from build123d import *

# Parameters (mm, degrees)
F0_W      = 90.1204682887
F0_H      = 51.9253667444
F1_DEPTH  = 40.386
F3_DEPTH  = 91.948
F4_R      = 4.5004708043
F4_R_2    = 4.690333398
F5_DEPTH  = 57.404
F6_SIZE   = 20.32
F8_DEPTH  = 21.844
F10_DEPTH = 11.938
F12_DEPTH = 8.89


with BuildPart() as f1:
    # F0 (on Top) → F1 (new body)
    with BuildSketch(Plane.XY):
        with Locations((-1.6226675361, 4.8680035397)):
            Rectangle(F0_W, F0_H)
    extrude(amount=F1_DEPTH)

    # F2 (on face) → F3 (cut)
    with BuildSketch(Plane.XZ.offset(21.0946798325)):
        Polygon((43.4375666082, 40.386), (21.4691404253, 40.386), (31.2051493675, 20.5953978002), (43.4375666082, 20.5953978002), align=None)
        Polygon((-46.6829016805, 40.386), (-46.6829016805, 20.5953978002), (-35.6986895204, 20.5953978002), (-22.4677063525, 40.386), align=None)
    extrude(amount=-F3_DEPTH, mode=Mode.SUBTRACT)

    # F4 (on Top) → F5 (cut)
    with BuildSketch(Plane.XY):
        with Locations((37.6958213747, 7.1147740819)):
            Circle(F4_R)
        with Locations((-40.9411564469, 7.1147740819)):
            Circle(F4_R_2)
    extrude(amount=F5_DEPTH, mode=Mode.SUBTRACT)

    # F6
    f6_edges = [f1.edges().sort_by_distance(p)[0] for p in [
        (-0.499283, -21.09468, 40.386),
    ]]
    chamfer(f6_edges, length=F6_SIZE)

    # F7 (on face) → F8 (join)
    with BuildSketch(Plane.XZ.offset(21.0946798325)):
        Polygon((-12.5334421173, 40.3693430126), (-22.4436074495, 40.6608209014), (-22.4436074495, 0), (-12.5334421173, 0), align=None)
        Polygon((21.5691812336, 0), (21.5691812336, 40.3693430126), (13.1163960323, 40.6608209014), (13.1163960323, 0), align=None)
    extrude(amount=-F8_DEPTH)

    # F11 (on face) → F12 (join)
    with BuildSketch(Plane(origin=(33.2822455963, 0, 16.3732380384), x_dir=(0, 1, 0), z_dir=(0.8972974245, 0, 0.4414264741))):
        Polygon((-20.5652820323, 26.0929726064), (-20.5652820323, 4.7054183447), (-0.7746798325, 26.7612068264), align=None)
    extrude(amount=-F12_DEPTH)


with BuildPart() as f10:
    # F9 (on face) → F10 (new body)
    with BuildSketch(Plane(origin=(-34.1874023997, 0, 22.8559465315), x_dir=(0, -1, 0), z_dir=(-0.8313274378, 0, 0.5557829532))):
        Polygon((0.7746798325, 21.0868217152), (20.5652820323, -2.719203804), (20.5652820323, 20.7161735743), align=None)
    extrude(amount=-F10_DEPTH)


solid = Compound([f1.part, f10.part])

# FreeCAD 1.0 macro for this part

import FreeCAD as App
import Part
import Sketcher
from FreeCAD import Vector
Q = App.Units.Quantity


def edges_at(feature, points):
    """Names of the edges that pass closest to the given points."""
    edges = feature.Shape.Edges
    near = lambda p: min(range(len(edges)), key=lambda i: edges[i].distToShape(Part.Vertex(*p))[0])
    return sorted({f"Edge{near(p) + 1}" for p in points})

doc = App.newDocument("Part")
body = doc.addObject("PartDesign::Body", "Body")

# Sketch on XY plane
sketch1 = doc.addObject("Sketcher::SketchObject", "Sketch")
body.addObject(sketch1)
sketch1.AttachmentSupport = (doc.XY_Plane, [""])
sketch1.MapMode = "FlatFace"
sketch1.addGeometry([
    Part.LineSegment(Vector(-46.682902, 30.830687, 0), Vector(-46.682902, -21.09468, 0)),
    Part.LineSegment(Vector(-46.682902, -21.09468, 0), Vector(43.437567, -21.09468, 0)),
    Part.LineSegment(Vector(43.437567, -21.09468, 0), Vector(43.437567, 30.830687, 0)),
    Part.LineSegment(Vector(43.437567, 30.830687, 0), Vector(-46.682902, 30.830687, 0)),
], False)
sketch1.addConstraint([
    Sketcher.Constraint("Coincident", 0, 2, 1, 1),
    Sketcher.Constraint("Coincident", 1, 2, 2, 1),
    Sketcher.Constraint("Coincident", 2, 2, 3, 1),
    Sketcher.Constraint("Coincident", 3, 2, 0, 1),
    Sketcher.Constraint("Vertical", 0),
    Sketcher.Constraint("Horizontal", 1),
    Sketcher.Constraint("Vertical", 2),
    Sketcher.Constraint("Horizontal", 3),
    Sketcher.Constraint("DistanceX", 1, 1, 1, 2, 90.120468),
    Sketcher.Constraint("DistanceX", 0, 2, -1, 1, 46.682902),
    Sketcher.Constraint("DistanceY", 0, 2, 0, 1, 51.925367),
    Sketcher.Constraint("DistanceY", 0, 2, -1, 1, 21.09468),
])
pad1 = doc.addObject("PartDesign::Pad", "Pad")
body.addObject(pad1)
pad1.Profile = sketch1
pad1.Length = Q("1.59 in")

# Sketch on XZ plane
sketch2 = doc.addObject("Sketcher::SketchObject", "Sketch001")
body.addObject(sketch2)
sketch2.AttachmentSupport = (doc.XZ_Plane, [""])
sketch2.MapMode = "FlatFace"
sketch2.AttachmentOffset = App.Placement(Vector(0, 0, 21.09468), App.Rotation())
sketch2.addGeometry([
    Part.LineSegment(Vector(43.437567, 40.386, 0), Vector(21.46914, 40.386, 0)),  # 0
    Part.LineSegment(Vector(21.46914, 40.386, 0), Vector(31.205149, 20.595398, 0)),  # 1
    Part.LineSegment(Vector(31.205149, 20.595398, 0), Vector(43.437567, 20.595398, 0)),  # 2
    Part.LineSegment(Vector(43.437567, 20.595398, 0), Vector(43.437567, 40.386, 0)),  # 3
    Part.LineSegment(Vector(-46.682902, 40.386, 0), Vector(-46.682902, 20.595398, 0)),  # 4
    Part.LineSegment(Vector(-46.682902, 20.595398, 0), Vector(-35.69869, 20.595398, 0)),  # 5
    Part.LineSegment(Vector(-35.69869, 20.595398, 0), Vector(-22.467706, 40.386, 0)),  # 6
    Part.LineSegment(Vector(-22.467706, 40.386, 0), Vector(-46.682902, 40.386, 0)),  # 7
], False)
sketch2.addConstraint([
    Sketcher.Constraint("Coincident", 0, 2, 1, 1),
    Sketcher.Constraint("Coincident", 1, 2, 2, 1),
    Sketcher.Constraint("Coincident", 2, 2, 3, 1),
    Sketcher.Constraint("Coincident", 3, 2, 0, 1),
    Sketcher.Constraint("Coincident", 4, 2, 5, 1),
    Sketcher.Constraint("Coincident", 5, 2, 6, 1),
    Sketcher.Constraint("Coincident", 6, 2, 7, 1),
    Sketcher.Constraint("Coincident", 7, 2, 4, 1),
    Sketcher.Constraint("Horizontal", 0),
    Sketcher.Constraint("Horizontal", 2),
    Sketcher.Constraint("Vertical", 3),
    Sketcher.Constraint("Vertical", 4),
    Sketcher.Constraint("Horizontal", 5),
    Sketcher.Constraint("Horizontal", 7),
    Sketcher.Constraint("Horizontal", 2, 2, 4, 2),
    Sketcher.Constraint("Horizontal", 3, 2, 6, 2),
    Sketcher.Constraint("DistanceY", -1, 1, 0, 2, Q("1.59 in")),
    Sketcher.Constraint("DistanceX", 4, 2, -1, 1, 46.682902),
    Sketcher.Constraint("Distance", 1, 22.055788),
    Sketcher.Constraint("DistanceX", 0, 2, 0, 1, 21.968426),
    Sketcher.Constraint("DistanceX", 2, 1, 2, 2, 12.232417),
    Sketcher.Constraint("DistanceX", 5, 1, 5, 2, 10.984212),
    Sketcher.Constraint("DistanceX", 7, 2, 7, 1, 24.215195),
    Sketcher.Constraint("DistanceX", -1, 1, 0, 2, 21.46914),
])
pocket1 = doc.addObject("PartDesign::Pocket", "Pocket")
body.addObject(pocket1)
pocket1.Profile = sketch2
pocket1.Length = Q("3.62 in")

# Sketch on XY plane
sketch3 = doc.addObject("Sketcher::SketchObject", "Sketch002")
body.addObject(sketch3)
sketch3.AttachmentSupport = (doc.XY_Plane, [""])
sketch3.MapMode = "FlatFace"
sketch3.addGeometry([
    Part.Circle(Vector(37.695821, 7.114774, 0), Vector(0, 0, 1), 4.500471),
    Part.Circle(Vector(-40.941156, 7.114774, 0), Vector(0, 0, 1), 4.690333),
], False)
sketch3.addConstraint([
    Sketcher.Constraint("Horizontal", 0, 3, 1, 3),
    Sketcher.Constraint("Diameter", 0, 9.000942),
    Sketcher.Constraint("Diameter", 1, 9.380667),
    Sketcher.Constraint("DistanceX", -1, 1, 0, 3, 37.695821),
    Sketcher.Constraint("DistanceY", -1, 1, 0, 3, 7.114774),
    Sketcher.Constraint("DistanceX", 1, 3, -1, 1, 40.941156),
])
pocket2 = doc.addObject("PartDesign::Pocket", "Pocket001")
body.addObject(pocket2)
pocket2.Profile = sketch3
pocket2.Length = Q("2.26 in")
pocket2.Reversed = True
doc.recompute()

chamfer = doc.addObject("PartDesign::Chamfer", "Chamfer")
body.addObject(chamfer)
chamfer.Base = (pocket2, edges_at(pocket2, [(-0.499, -21.095, 40.386)]))
chamfer.Size = Q("0.8 in")

# Sketch on XZ plane
sketch4 = doc.addObject("Sketcher::SketchObject", "Sketch003")
body.addObject(sketch4)
sketch4.AttachmentSupport = (doc.XZ_Plane, [""])
sketch4.MapMode = "FlatFace"
sketch4.AttachmentOffset = App.Placement(Vector(0, 0, 21.09468), App.Rotation())
sketch4.addGeometry([
    Part.LineSegment(Vector(-12.533442, 40.369343, 0), Vector(-22.443607, 40.660821, 0)),  # 0
    Part.LineSegment(Vector(-22.443607, 40.660821, 0), Vector(-22.443607, 0, 0)),  # 1
    Part.LineSegment(Vector(-22.443607, 0, 0), Vector(-12.533442, 0, 0)),  # 2
    Part.LineSegment(Vector(-12.533442, 0, 0), Vector(-12.533442, 40.369343, 0)),  # 3
    Part.LineSegment(Vector(21.569181, 0, 0), Vector(21.569181, 40.369343, 0)),  # 4
    Part.LineSegment(Vector(21.569181, 40.369343, 0), Vector(13.116396, 40.660821, 0)),  # 5
    Part.LineSegment(Vector(13.116396, 40.660821, 0), Vector(13.116396, 0, 0)),  # 6
    Part.LineSegment(Vector(13.116396, 0, 0), Vector(21.569181, 0, 0)),  # 7
], False)
sketch4.addConstraint([
    Sketcher.Constraint("Coincident", 0, 2, 1, 1),
    Sketcher.Constraint("Coincident", 1, 2, 2, 1),
    Sketcher.Constraint("Coincident", 2, 2, 3, 1),
    Sketcher.Constraint("Coincident", 3, 2, 0, 1),
    Sketcher.Constraint("Coincident", 4, 2, 5, 1),
    Sketcher.Constraint("Coincident", 5, 2, 6, 1),
    Sketcher.Constraint("Coincident", 6, 2, 7, 1),
    Sketcher.Constraint("Coincident", 7, 2, 4, 1),
    Sketcher.Constraint("Vertical", 1),
    Sketcher.Constraint("Horizontal", 2),
    Sketcher.Constraint("Vertical", 3),
    Sketcher.Constraint("Vertical", 4),
    Sketcher.Constraint("Vertical", 6),
    Sketcher.Constraint("Horizontal", 7),
    Sketcher.Constraint("PointOnObject", 1, 2, -1),
    Sketcher.Constraint("PointOnObject", 6, 2, -1),
    Sketcher.Constraint("Horizontal", 3, 2, 4, 2),
    Sketcher.Constraint("Horizontal", 0, 2, 5, 2),
    Sketcher.Constraint("DistanceX", 0, 2, 5, 2, Q("1.4000001 in")),
    Sketcher.Constraint("DistanceY", 1, 2, 1, 1, 40.660821),
    Sketcher.Constraint("Distance", 0, 9.914451),
    Sketcher.Constraint("Distance", 5, 8.457809),
    Sketcher.Constraint("DistanceX", 2, 1, 2, 2, 9.910165),
    Sketcher.Constraint("DistanceX", -1, 1, 4, 2, 21.569181),
])
pad2 = doc.addObject("PartDesign::Pad", "Pad001")
body.addObject(pad2)
pad2.Profile = sketch4
pad2.Length = Q("0.86 in")
pad2.Reversed = True

# Sketch on an angled plane
sketch5 = doc.addObject("Sketcher::SketchObject", "Sketch004")
body.addObject(sketch5)
sketch5.Placement = App.Placement(Vector(33.282246, 0, 16.373238), App.Rotation(Vector(0, 1, 0), Vector(-0.441426474, 0, 0.897297424), Vector(0.897297424, 0, 0.441426474), "ZXY"))
sketch5.addGeometry([
    Part.LineSegment(Vector(-20.565282, 26.092973, 0), Vector(-20.565282, 4.705418, 0)),
    Part.LineSegment(Vector(-20.565282, 4.705418, 0), Vector(-0.77468, 26.761207, 0)),
    Part.LineSegment(Vector(-0.77468, 26.761207, 0), Vector(-20.565282, 26.092973, 0)),
], False)
sketch5.addConstraint([
    Sketcher.Constraint("Coincident", 0, 2, 1, 1),
    Sketcher.Constraint("Coincident", 1, 2, 2, 1),
    Sketcher.Constraint("Coincident", 2, 2, 0, 1),
    Sketcher.Constraint("Vertical", 0),
    Sketcher.Constraint("Distance", 2, 19.801881),
    Sketcher.Constraint("DistanceY", 0, 2, 0, 1, 21.387554),
    Sketcher.Constraint("DistanceY", -1, 1, 0, 2, 4.705418),
    Sketcher.Constraint("DistanceX", 1, 2, -1, 1, 0.77468),
    Sketcher.Constraint("DistanceY", 0, 2, 1, 2, 22.055788),
])
pad3 = doc.addObject("PartDesign::Pad", "Pad002")
body.addObject(pad3)
pad3.Profile = sketch5
pad3.Length = Q("0.35 in")
pad3.Reversed = True
body2 = doc.addObject("PartDesign::Body", "Body001")

# Sketch on an angled plane
sketch6 = doc.addObject("Sketcher::SketchObject", "Sketch005")
body2.addObject(sketch6)
sketch6.Placement = App.Placement(Vector(-34.187402, 0, 22.855947), App.Rotation(Vector(0, -1, 0), Vector(0.555782953, 0, 0.831327438), Vector(-0.831327438, 0, 0.555782953), "ZXY"))
sketch6.addGeometry([
    Part.LineSegment(Vector(0.77468, 21.086822, 0), Vector(20.565282, -2.719204, 0)),
    Part.LineSegment(Vector(20.565282, -2.719204, 0), Vector(20.565282, 20.716174, 0)),
    Part.LineSegment(Vector(20.565282, 20.716174, 0), Vector(0.77468, 21.086822, 0)),
], False)
sketch6.addConstraint([
    Sketcher.Constraint("Coincident", 0, 2, 1, 1),
    Sketcher.Constraint("Coincident", 1, 2, 2, 1),
    Sketcher.Constraint("Coincident", 2, 2, 0, 1),
    Sketcher.Constraint("Vertical", 1),
    Sketcher.Constraint("Distance", 0, 30.957952),
    Sketcher.Constraint("DistanceY", 1, 1, 1, 2, 23.435377),
    Sketcher.Constraint("DistanceX", -1, 1, 2, 2, 0.77468),
    Sketcher.Constraint("DistanceY", -1, 1, 2, 2, 21.086822),
    Sketcher.Constraint("DistanceY", 1, 2, 2, 2, 0.370648),
])
pad4 = doc.addObject("PartDesign::Pad", "Pad003")
body2.addObject(pad4)
pad4.Profile = sketch6
pad4.Length = Q("0.47 in")
pad4.Reversed = True

doc.recompute()
